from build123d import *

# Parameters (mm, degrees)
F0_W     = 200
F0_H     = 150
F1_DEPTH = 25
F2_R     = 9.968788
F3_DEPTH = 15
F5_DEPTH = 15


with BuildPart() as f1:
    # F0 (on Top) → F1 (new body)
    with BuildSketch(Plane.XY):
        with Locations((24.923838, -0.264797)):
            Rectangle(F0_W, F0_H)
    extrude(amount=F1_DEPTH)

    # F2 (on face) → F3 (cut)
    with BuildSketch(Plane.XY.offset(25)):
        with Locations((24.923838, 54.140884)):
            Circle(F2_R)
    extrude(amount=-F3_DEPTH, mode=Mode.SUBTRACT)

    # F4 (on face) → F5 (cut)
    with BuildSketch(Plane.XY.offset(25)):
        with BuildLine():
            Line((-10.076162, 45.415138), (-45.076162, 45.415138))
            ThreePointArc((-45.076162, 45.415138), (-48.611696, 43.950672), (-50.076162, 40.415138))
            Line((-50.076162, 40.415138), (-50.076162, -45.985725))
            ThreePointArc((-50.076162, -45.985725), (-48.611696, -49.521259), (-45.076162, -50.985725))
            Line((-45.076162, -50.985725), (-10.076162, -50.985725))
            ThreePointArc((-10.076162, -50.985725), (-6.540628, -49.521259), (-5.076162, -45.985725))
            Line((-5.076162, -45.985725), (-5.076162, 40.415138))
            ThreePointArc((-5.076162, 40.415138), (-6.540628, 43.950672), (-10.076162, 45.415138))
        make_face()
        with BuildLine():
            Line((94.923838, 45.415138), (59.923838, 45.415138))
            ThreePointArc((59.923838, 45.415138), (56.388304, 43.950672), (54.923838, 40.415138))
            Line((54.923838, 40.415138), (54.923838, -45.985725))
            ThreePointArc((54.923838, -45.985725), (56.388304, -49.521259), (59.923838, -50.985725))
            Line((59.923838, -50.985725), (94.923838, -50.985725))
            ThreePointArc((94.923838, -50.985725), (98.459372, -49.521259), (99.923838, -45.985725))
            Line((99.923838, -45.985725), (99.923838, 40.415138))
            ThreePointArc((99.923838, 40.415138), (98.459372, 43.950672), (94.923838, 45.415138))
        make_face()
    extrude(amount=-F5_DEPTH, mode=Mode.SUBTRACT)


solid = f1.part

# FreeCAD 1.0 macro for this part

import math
import FreeCAD as App
import Part
import Sketcher
from FreeCAD import Vector

doc = App.newDocument("Part")
params = doc.addObject("Spreadsheet::Sheet", "Params")
for row, (alias, value) in enumerate([
    ("sketch1_width", "200 mm"),
    ("sketch1_height", "150 mm"),
    ("pad1_length", "25 mm"),
    ("pocket1_length", "15 mm"),
    ("sketch3_radius", "5 mm"),
    ("sketch3_width", "35 mm"),
    ("pocket2_length", "15 mm"),
], start=1):
    params.set(f"A{row}", alias)
    params.set(f"B{row}", "=" + value)
    params.setAlias(f"B{row}", alias)

body = doc.addObject("PartDesign::Body", "Body")

sketch1 = doc.addObject("Sketcher::SketchObject", "Sketch")
body.addObject(sketch1)
sketch1.AttachmentSupport = (doc.XY_Plane, [""])
sketch1.MapMode = "FlatFace"
sketch1.addGeometry([
    Part.LineSegment(Vector(-75, 75, 0), Vector(-75, -75, 0)),
    Part.LineSegment(Vector(-75, -75, 0), Vector(125, -75, 0)),
    Part.LineSegment(Vector(125, -75, 0), Vector(125, 75, 0)),
    Part.LineSegment(Vector(125, 75, 0), Vector(-75, 75, 0)),
], False)
sketch1.addConstraint([
    Sketcher.Constraint("Coincident", 0, 2, 1, 1),
    Sketcher.Constraint("Coincident", 1, 2, 2, 1),
    Sketcher.Constraint("Coincident", 2, 2, 3, 1),
    Sketcher.Constraint("Coincident", 3, 2, 0, 1),
    Sketcher.Constraint("Vertical", 0),
    Sketcher.Constraint("Horizontal", 1),
    Sketcher.Constraint("Vertical", 2),
    Sketcher.Constraint("Horizontal", 3),
    Sketcher.Constraint("DistanceX", 1, 1, 1, 2, 200.0),
    Sketcher.Constraint("DistanceY", 0, 2, 0, 1, 150.0),
    Sketcher.Constraint("DistanceX", 0, 2, -1, 1, 75.076162),
    Sketcher.Constraint("DistanceY", 0, 2, -1, 1, 75.264797),
])
sketch1.setExpression("Constraints[8]", "Params.sketch1_width")
sketch1.setExpression("Constraints[9]", "Params.sketch1_height")
pad1 = doc.addObject("PartDesign::Pad", "Pad")
body.addObject(pad1)
pad1.Profile = sketch1
pad1.setExpression("Length", "Params.pad1_length")

sketch2 = doc.addObject("Sketcher::SketchObject", "Sketch001")
body.addObject(sketch2)
sketch2.AttachmentSupport = (doc.XY_Plane, [""])
sketch2.MapMode = "FlatFace"
sketch2.AttachmentOffset = App.Placement(Vector(0, 0, 25), App.Rotation())
sketch2.addGeometry(Part.Circle(Vector(25, 54, 0), Vector(0, 0, 1), 10), False)
sketch2.addConstraint([
    Sketcher.Constraint("Diameter", 0, 19.937576),
    Sketcher.Constraint("DistanceX", -1, 1, 0, 3, 24.923838),
    Sketcher.Constraint("DistanceY", -1, 1, 0, 3, 54.140884),
])
pocket1 = doc.addObject("PartDesign::Pocket", "Pocket")
body.addObject(pocket1)
pocket1.Profile = sketch2
pocket1.setExpression("Length", "Params.pocket1_length")

sketch3 = doc.addObject("Sketcher::SketchObject", "Sketch002")
body.addObject(sketch3)
sketch3.AttachmentSupport = (doc.XY_Plane, [""])
sketch3.MapMode = "FlatFace"
sketch3.AttachmentOffset = App.Placement(Vector(0, 0, 25), App.Rotation())
sketch3.addGeometry([
    Part.LineSegment(Vector(-10.1, 45.4, 0), Vector(-45.1, 45.4, 0)),
    Part.ArcOfCircle(Part.Circle(Vector(-45.1, 40.4, 0), Vector(0, 0, 1), 5), math.radians(90), math.radians(180)),
    Part.LineSegment(Vector(-50.1, 40.4, 0), Vector(-50.1, -46, 0)),
    Part.ArcOfCircle(Part.Circle(Vector(-45.1, -46, 0), Vector(0, 0, 1), 5), math.radians(180), math.radians(270)),
    Part.LineSegment(Vector(-45.1, -51, 0), Vector(-10.1, -51, 0)),
    Part.ArcOfCircle(Part.Circle(Vector(-10.1, -46, 0), Vector(0, 0, 1), 5), math.radians(-90), math.radians(0)),
    Part.LineSegment(Vector(-5.1, -46, 0), Vector(-5.1, 40.4, 0)),
    Part.ArcOfCircle(Part.Circle(Vector(-10.1, 40.4, 0), Vector(0, 0, 1), 5), math.radians(0), math.radians(90)),
    Part.LineSegment(Vector(94.9, 45.4, 0), Vector(59.9, 45.4, 0)),
    Part.ArcOfCircle(Part.Circle(Vector(59.9, 40.4, 0), Vector(0, 0, 1), 5), math.radians(90), math.radians(180)),
    Part.LineSegment(Vector(54.9, 40.4, 0), Vector(54.9, -46, 0)),
    Part.ArcOfCircle(Part.Circle(Vector(59.9, -46, 0), Vector(0, 0, 1), 5), math.radians(180), math.radians(270)),
    Part.LineSegment(Vector(59.9, -51, 0), Vector(94.9, -51, 0)),
    Part.ArcOfCircle(Part.Circle(Vector(94.9, -46, 0), Vector(0, 0, 1), 5), math.radians(-90), math.radians(0)),
    Part.LineSegment(Vector(99.9, -46, 0), Vector(99.9, 40.4, 0)),
    Part.ArcOfCircle(Part.Circle(Vector(94.9, 40.4, 0), Vector(0, 0, 1), 5), math.radians(0), math.radians(90)),
], False)
sketch3.addConstraint([
    Sketcher.Constraint("Tangent", 0, 2, 1, 1),
    Sketcher.Constraint("Tangent", 1, 2, 2, 1),
    Sketcher.Constraint("Tangent", 2, 2, 3, 1),
    Sketcher.Constraint("Tangent", 3, 2, 4, 1),
    Sketcher.Constraint("Tangent", 4, 2, 5, 1),
    Sketcher.Constraint("Tangent", 5, 2, 6, 1),
    Sketcher.Constraint("Tangent", 6, 2, 7, 1),
    Sketcher.Constraint("Tangent", 7, 2, 0, 1),
    Sketcher.Constraint("Tangent", 8, 2, 9, 1),
    Sketcher.Constraint("Tangent", 9, 2, 10, 1),
    Sketcher.Constraint("Tangent", 10, 2, 11, 1),
    Sketcher.Constraint("Tangent", 11, 2, 12, 1),
    Sketcher.Constraint("Tangent", 12, 2, 13, 1),
    Sketcher.Constraint("Tangent", 13, 2, 14, 1),
    Sketcher.Constraint("Tangent", 14, 2, 15, 1),
    Sketcher.Constraint("Tangent", 15, 2, 8, 1),
    Sketcher.Constraint("Horizontal", 0),
    Sketcher.Constraint("Vertical", 2),
    Sketcher.Constraint("Horizontal", 4),
    Sketcher.Constraint("Vertical", 6),
    Sketcher.Constraint("Horizontal", 8),
    Sketcher.Constraint("Vertical", 10),
    Sketcher.Constraint("Horizontal", 12),
    Sketcher.Constraint("Vertical", 14),
    Sketcher.Constraint("Equal", 1, 3),
    Sketcher.Constraint("Equal", 3, 5),
    Sketcher.Constraint("Equal", 5, 7),
    Sketcher.Constraint("Equal", 7, 9),
    Sketcher.Constraint("Equal", 9, 11),
    Sketcher.Constraint("Equal", 11, 13),
    Sketcher.Constraint("Equal", 13, 15),
    Sketcher.Constraint("Horizontal", 7, 3, 9, 3),
    Sketcher.Constraint("Horizontal", 5, 3, 11, 3),
    Sketcher.Constraint("Equal", 4, 8),
    Sketcher.Constraint("Radius", 1, 5.0),
    Sketcher.Constraint("DistanceX", 0, 2, 0, 1, 35.0),
    Sketcher.Constraint("DistanceX", 7, 3, 9, 3, 69.999999),
    Sketcher.Constraint("DistanceY", 2, 2, 2, 1, 86.400863),
    Sketcher.Constraint("DistanceY", -1, 1, 1, 3, 40.415138),
    Sketcher.Constraint("DistanceX", 5, 3, -1, 1, 10.076162),
])
sketch3.setExpression("Constraints[34]", "Params.sketch3_radius")
sketch3.setExpression("Constraints[35]", "Params.sketch3_width")
pocket2 = doc.addObject("PartDesign::Pocket", "Pocket001")
body.addObject(pocket2)
pocket2.Profile = sketch3
pocket2.setExpression("Length", "Params.pocket2_length")

doc.recompute()
